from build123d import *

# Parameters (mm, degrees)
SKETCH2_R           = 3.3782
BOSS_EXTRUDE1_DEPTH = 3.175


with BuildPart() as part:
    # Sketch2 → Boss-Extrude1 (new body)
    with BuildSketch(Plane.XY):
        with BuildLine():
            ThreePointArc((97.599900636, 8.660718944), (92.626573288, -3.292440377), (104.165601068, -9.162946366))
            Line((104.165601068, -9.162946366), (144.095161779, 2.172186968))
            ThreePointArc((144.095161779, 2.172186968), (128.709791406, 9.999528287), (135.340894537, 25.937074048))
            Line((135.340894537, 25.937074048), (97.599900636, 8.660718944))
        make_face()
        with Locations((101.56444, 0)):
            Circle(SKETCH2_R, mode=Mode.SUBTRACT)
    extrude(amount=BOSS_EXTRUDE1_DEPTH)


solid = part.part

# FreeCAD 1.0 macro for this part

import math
import FreeCAD as App
import Part
import Sketcher
Q = App.Units.Quantity

doc = App.newDocument("Part")
body = doc.addObject("PartDesign::Body", "Body")

sketch1 = body.newObject("Sketcher::SketchObject", "Sketch")
sketch1.AttachmentSupport = (doc.getObject("XY_Plane"), [""])
sketch1.MapMode = "FlatFace"
sketch1.addGeometry([
    Part.ArcOfCircle(Part.Circle(App.Vector(101.6, 0, 0), App.Vector(0, 0, 1), 9.5), math.radians(115), math.radians(286)),
    Part.LineSegment(App.Vector(104.2, -9.2, 0), App.Vector(144.1, 2.2, 0)),
    Part.ArcOfCircle(Part.Circle(App.Vector(140.6, 14.4, 0), App.Vector(0, 0, 1), 12.7), math.radians(115), math.radians(286)),
    Part.LineSegment(App.Vector(135.3, 25.9, 0), App.Vector(97.6, 8.7, 0)),
    Part.Circle(App.Vector(101.6, 0, 0), App.Vector(0, 0, 1), 3.4),
], False)
sketch1.addConstraint([
    Sketcher.Constraint("Tangent", 0, 2, 1, 1),
    Sketcher.Constraint("Tangent", 1, 2, 2, 2),
    Sketcher.Constraint("Tangent", 2, 1, 3, 1),
    Sketcher.Constraint("Tangent", 3, 2, 0, 1),
    Sketcher.Constraint("Coincident", 4, 3, 0, 3),
    Sketcher.Constraint("PointOnObject", 0, 3, -1),
    Sketcher.Constraint("Radius", 2, Q("0.5 in")),
    Sketcher.Constraint("Diameter", 4, Q("0.266 in")),
    Sketcher.Constraint("Radius", 0, Q("0.375 in")),
    Sketcher.Constraint("DistanceX", -1, 1, 0, 3, Q("3.9986 in")),
    Sketcher.Constraint("DistanceX", -1, 1, 0, 2, Q("104.165601 mm")),
    Sketcher.Constraint("DistanceX", -1, 1, 3, 2, Q("97.599901 mm")),
])
pad1 = body.newObject("PartDesign::Pad", "Pad")
pad1.Profile = sketch1
pad1.Length = Q("0.125 in")

doc.recompute()
